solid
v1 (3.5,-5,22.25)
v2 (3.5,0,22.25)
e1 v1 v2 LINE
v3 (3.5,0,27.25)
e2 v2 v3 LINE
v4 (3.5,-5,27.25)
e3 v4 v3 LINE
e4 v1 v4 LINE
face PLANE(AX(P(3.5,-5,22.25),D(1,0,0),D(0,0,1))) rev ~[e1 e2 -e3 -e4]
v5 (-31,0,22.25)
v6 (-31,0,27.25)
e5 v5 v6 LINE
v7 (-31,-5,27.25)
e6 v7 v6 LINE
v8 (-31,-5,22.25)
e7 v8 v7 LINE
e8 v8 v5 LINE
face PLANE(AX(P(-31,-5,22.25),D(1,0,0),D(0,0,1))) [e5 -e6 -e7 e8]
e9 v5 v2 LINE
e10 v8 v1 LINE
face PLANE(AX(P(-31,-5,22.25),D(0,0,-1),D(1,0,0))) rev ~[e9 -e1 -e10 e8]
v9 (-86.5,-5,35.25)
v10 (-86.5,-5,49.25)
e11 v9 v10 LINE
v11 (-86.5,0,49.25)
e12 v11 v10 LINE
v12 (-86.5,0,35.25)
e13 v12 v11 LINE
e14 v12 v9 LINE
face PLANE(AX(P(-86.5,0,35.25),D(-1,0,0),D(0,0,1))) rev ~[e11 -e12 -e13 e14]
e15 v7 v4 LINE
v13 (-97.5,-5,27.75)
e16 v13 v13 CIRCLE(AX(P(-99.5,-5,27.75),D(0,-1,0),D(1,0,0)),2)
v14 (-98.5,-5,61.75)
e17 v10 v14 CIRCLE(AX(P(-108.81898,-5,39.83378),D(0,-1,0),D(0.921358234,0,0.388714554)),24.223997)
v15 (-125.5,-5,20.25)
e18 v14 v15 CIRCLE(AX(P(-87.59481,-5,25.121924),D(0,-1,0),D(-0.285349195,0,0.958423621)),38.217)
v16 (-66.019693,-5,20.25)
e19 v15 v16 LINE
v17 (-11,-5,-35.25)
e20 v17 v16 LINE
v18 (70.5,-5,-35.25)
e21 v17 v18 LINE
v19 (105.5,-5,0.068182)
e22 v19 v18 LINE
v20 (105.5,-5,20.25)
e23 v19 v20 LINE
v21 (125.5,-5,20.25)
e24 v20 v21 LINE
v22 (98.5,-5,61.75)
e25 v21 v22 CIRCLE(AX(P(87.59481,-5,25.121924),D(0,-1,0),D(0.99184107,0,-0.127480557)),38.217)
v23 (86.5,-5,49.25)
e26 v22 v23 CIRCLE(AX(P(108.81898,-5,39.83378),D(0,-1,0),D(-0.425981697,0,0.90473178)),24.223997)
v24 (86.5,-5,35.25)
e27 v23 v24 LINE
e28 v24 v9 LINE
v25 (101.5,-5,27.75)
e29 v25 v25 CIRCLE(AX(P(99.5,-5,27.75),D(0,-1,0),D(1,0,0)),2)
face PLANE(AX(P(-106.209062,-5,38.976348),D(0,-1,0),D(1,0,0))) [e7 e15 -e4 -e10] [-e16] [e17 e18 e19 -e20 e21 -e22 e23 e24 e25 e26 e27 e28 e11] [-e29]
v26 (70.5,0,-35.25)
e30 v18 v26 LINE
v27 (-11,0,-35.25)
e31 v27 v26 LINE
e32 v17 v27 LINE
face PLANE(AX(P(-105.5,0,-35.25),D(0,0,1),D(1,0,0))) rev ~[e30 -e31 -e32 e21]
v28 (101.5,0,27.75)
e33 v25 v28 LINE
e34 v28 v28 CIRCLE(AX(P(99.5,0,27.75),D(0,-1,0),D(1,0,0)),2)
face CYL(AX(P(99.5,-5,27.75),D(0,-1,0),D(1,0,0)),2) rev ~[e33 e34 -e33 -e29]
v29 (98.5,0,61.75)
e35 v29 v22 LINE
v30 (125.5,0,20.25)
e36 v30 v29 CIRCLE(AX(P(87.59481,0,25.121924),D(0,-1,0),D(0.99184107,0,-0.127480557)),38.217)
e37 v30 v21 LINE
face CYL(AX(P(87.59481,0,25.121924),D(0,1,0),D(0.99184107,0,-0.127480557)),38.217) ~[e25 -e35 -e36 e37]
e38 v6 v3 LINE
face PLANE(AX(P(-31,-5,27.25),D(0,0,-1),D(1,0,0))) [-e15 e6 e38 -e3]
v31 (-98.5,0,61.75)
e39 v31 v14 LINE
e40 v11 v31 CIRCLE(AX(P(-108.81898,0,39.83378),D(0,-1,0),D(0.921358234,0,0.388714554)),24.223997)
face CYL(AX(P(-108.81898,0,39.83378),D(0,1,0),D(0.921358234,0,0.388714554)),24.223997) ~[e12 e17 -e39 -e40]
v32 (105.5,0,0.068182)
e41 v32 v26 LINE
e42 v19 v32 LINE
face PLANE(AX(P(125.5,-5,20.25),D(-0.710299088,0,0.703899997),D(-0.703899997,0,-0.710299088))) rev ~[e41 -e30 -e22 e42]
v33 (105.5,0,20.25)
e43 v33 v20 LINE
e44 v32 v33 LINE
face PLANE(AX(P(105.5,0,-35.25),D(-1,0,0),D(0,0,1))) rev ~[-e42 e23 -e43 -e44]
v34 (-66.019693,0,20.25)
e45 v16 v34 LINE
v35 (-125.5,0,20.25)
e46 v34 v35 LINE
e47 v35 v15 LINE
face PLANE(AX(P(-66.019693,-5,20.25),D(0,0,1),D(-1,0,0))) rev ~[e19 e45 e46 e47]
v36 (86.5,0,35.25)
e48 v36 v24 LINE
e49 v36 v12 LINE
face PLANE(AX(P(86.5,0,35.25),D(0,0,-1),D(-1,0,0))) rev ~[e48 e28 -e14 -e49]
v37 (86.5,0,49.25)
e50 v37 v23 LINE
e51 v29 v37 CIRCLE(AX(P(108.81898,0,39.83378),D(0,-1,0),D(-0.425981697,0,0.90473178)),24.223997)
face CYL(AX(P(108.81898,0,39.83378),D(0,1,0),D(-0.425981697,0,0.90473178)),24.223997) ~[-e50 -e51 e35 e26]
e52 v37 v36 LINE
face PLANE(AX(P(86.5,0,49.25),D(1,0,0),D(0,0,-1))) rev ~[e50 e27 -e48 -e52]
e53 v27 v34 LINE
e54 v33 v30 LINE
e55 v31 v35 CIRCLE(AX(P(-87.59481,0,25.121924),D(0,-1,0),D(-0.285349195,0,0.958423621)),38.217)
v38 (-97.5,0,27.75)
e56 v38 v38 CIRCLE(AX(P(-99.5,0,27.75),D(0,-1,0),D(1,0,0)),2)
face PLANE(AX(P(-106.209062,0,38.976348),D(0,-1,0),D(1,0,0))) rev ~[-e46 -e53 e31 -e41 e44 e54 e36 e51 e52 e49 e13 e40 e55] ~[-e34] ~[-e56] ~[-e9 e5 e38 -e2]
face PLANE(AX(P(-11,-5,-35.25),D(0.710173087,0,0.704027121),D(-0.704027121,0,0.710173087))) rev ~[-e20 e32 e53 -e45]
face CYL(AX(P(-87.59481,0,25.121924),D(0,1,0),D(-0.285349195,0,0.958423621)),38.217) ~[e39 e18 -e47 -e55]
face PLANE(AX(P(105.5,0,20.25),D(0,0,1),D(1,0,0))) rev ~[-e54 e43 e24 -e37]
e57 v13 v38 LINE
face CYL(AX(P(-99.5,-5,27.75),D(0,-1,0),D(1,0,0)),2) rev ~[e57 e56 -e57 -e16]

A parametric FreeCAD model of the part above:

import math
import FreeCAD as App
import Part
import Sketcher

V = App.Vector

doc = App.newDocument("Part")
body = doc.addObject("PartDesign::Body", "Body")

sketch1 = doc.addObject("Sketcher::SketchObject", "Sketch")
body.addObject(sketch1)
sketch1.AttachmentSupport = (doc.XZ_Plane, [""])
sketch1.MapMode = "FlatFace"
sketch1.addGeometry([
    Part.LineSegment(V(-86, 35, 0), V(-86, 49, 0)),
    Part.ArcOfCircle(Part.Circle(V(-109, 40, 0), V(0, 0, 1), 24), math.radians(23), math.radians(65)),
    Part.ArcOfCircle(Part.Circle(V(-88, 25, 0), V(0, 0, 1), 38), math.radians(107), math.radians(187)),
    Part.LineSegment(V(-126, 20, 0), V(-106, 20, 0)),
    Part.LineSegment(V(-106, 20, 0), V(-106, -35, 0)),
    Part.LineSegment(V(-106, -35, 0), V(106, -35, 0)),
    Part.LineSegment(V(106, -35, 0), V(106, 20, 0)),
    Part.LineSegment(V(106, 20, 0), V(126, 20, 0)),
    Part.ArcOfCircle(Part.Circle(V(88, 25, 0), V(0, 0, 1), 38), math.radians(-7), math.radians(73)),
    Part.ArcOfCircle(Part.Circle(V(109, 40, 0), V(0, 0, 1), 24), math.radians(115), math.radians(157)),
    Part.LineSegment(V(86, 49, 0), V(86, 35, 0)),
    Part.LineSegment(V(86, 35, 0), V(-86, 35, 0)),
], False)
sketch1.addConstraint([
    Sketcher.Constraint("Coincident", 0, 2, 1, 1),
    Sketcher.Constraint("Coincident", 1, 2, 2, 1),
    Sketcher.Constraint("Coincident", 2, 2, 3, 1),
    Sketcher.Constraint("Coincident", 3, 2, 4, 1),
    Sketcher.Constraint("Coincident", 4, 2, 5, 1),
    Sketcher.Constraint("Coincident", 5, 2, 6, 1),
    Sketcher.Constraint("Coincident", 6, 2, 7, 1),
    Sketcher.Constraint("Coincident", 7, 2, 8, 1),
    Sketcher.Constraint("Coincident", 8, 2, 9, 1),
    Sketcher.Constraint("Coincident", 9, 2, 10, 1),
    Sketcher.Constraint("Coincident", 10, 2, 11, 1),
    Sketcher.Constraint("Coincident", 11, 2, 0, 1),
    Sketcher.Constraint("Vertical", 0),
    Sketcher.Constraint("Horizontal", 3),
    Sketcher.Constraint("Vertical", 4),
    Sketcher.Constraint("Horizontal", 5),
    Sketcher.Constraint("Vertical", 6),
    Sketcher.Constraint("Horizontal", 7),
    Sketcher.Constraint("Vertical", 10),
    Sketcher.Constraint("Horizontal", 11),
    Sketcher.Constraint("Equal", 2, 8),
    Sketcher.Constraint("Equal", 1, 9),
    Sketcher.Constraint("Symmetric", 2, 3, 8, 3, -2),
    Sketcher.Constraint("Symmetric", 1, 3, 9, 3, -2),
    Sketcher.Constraint("Symmetric", 3, 2, 6, 2, -2),
    Sketcher.Constraint("Horizontal", 0, 2, 9, 2),
    Sketcher.Constraint("DistanceX", 3, 1, 3, 2, 20.0),
    Sketcher.Constraint("DistanceX", 5, 1, 5, 2, 211.0),
    Sketcher.Constraint("DistanceX", 11, 2, 11, 1, 173.0),
    Sketcher.Constraint("DistanceY", 0, 1, 0, 2, 14.0),
    Sketcher.Constraint("DistanceY", 4, 2, 4, 1, 55.5),
    Sketcher.Constraint("Radius", 2, 38.217),
    Sketcher.Constraint("DistanceX", 1, 2, 0, 2, 12.0),
    Sketcher.Constraint("DistanceY", 2, 2, 0, 2, 29.0),
    Sketcher.Constraint("DistanceY", 5, 2, 8, 2, 97.0),
    Sketcher.Constraint("DistanceY", -1, 1, 0, 2, 49.25),
    Sketcher.Constraint("Radius", 1, 24.223997),
])
pad1 = doc.addObject("PartDesign::Pad", "Pad")
body.addObject(pad1)
pad1.Profile = sketch1
pad1.Length = 5

sketch2 = doc.addObject("Sketcher::SketchObject", "Sketch001")
body.addObject(sketch2)
sketch2.AttachmentSupport = (doc.XZ_Plane, [""])
sketch2.MapMode = "FlatFace"
sketch2.AttachmentOffset = App.Placement(V(0, 0, 5), App.Rotation())
sketch2.addGeometry([
    Part.LineSegment(V(126, 20, 0), V(70, -35, 0)),
    Part.LineSegment(V(70, -35, 0), V(120, -35, 0)),
    Part.LineSegment(V(120, -35, 0), V(126, 20, 0)),
    Part.LineSegment(V(-106, -35, 0), V(-11, -35, 0)),
    Part.LineSegment(V(-11, -35, 0), V(-66, 20, 0)),
    Part.LineSegment(V(-66, 20, 0), V(-106, 20, 0)),
    Part.LineSegment(V(-106, 20, 0), V(-106, -35, 0)),
    Part.LineSegment(V(-31, 27, 0), V(-31, 22, 0)),
    Part.LineSegment(V(-31, 22, 0), V(4, 22, 0)),
    Part.LineSegment(V(4, 22, 0), V(4, 27, 0)),
    Part.LineSegment(V(4, 27, 0), V(-31, 27, 0)),
], False)
sketch2.addConstraint([
    Sketcher.Constraint("Coincident", 0, 2, 1, 1),
    Sketcher.Constraint("Coincident", 1, 2, 2, 1),
    Sketcher.Constraint("Coincident", 2, 2, 0, 1),
    Sketcher.Constraint("Coincident", 3, 2, 4, 1),
    Sketcher.Constraint("Coincident", 4, 2, 5, 1),
    Sketcher.Constraint("Coincident", 5, 2, 6, 1),
    Sketcher.Constraint("Coincident", 6, 2, 3, 1),
    Sketcher.Constraint("Coincident", 7, 2, 8, 1),
    Sketcher.Constraint("Coincident", 8, 2, 9, 1),
    Sketcher.Constraint("Coincident", 9, 2, 10, 1),
    Sketcher.Constraint("Coincident", 10, 2, 7, 1),
    Sketcher.Constraint("Horizontal", 1),
    Sketcher.Constraint("Horizontal", 3),
    Sketcher.Constraint("Horizontal", 5),
    Sketcher.Constraint("Vertical", 6),
    Sketcher.Constraint("Vertical", 7),
    Sketcher.Constraint("Horizontal", 8),
    Sketcher.Constraint("Vertical", 9),
    Sketcher.Constraint("Horizontal", 10),
    Sketcher.Constraint("Horizontal", 1, 2, 3, 2),
    Sketcher.Constraint("Horizontal", 2, 2, 4, 2),
    Sketcher.Constraint("DistanceY", 7, 2, 7, 1, 5.0),
    Sketcher.Constraint("DistanceX", 3, 1, 3, 2, 94.5),
    Sketcher.Constraint("DistanceX", 8, 1, 8, 2, 34.5),
    Sketcher.Constraint("DistanceY", 6, 2, 6, 1, 55.5),
    Sketcher.Constraint("DistanceX", 3, 2, -1, 1, 11.0),
    Sketcher.Constraint("DistanceX", 7, 2, -1, 1, 31.0),
    Sketcher.Constraint("DistanceX", 0, 2, 2, 2, 55.0),
    Sketcher.Constraint("DistanceX", 5, 2, 0, 2, 176.0),
    Sketcher.Constraint("DistanceY", 4, 2, 7, 2, 2.0),
    Sketcher.Constraint("DistanceY", 0, 2, -1, 1, 35.25),
    Sketcher.Constraint("Distance", 2, 55.801729),
    Sketcher.Constraint("DistanceX", 5, 2, 5, 1, 39.480307),
])
pocket1 = doc.addObject("PartDesign::Pocket", "Pocket")
body.addObject(pocket1)
pocket1.Profile = sketch2
pocket1.Length = 25

sketch3 = doc.addObject("Sketcher::SketchObject", "Sketch002")
body.addObject(sketch3)
sketch3.AttachmentSupport = (doc.XZ_Plane, [""])
sketch3.MapMode = "FlatFace"
sketch3.AttachmentOffset = App.Placement(V(0, 0, 5), App.Rotation())
sketch3.addGeometry([
    Part.Circle(V(-99.5, 27.8, 0), V(0, 0, 1), 2),
    Part.Circle(V(99.5, 27.8, 0), V(0, 0, 1), 2),
], False)
sketch3.addConstraint([
    Sketcher.Constraint("Equal", 0, 1),
    Sketcher.Constraint("Symmetric", 0, 3, 1, 3, -2),
    Sketcher.Constraint("Diameter", 0, 4.0),
    Sketcher.Constraint("DistanceX", 0, 3, 1, 3, 199.0),
    Sketcher.Constraint("DistanceY", -1, 1, 0, 3, 27.75),
])
pocket2 = doc.addObject("PartDesign::Pocket", "Pocket001")
body.addObject(pocket2)
pocket2.Profile = sketch3
pocket2.Length = 25

doc.recompute()
